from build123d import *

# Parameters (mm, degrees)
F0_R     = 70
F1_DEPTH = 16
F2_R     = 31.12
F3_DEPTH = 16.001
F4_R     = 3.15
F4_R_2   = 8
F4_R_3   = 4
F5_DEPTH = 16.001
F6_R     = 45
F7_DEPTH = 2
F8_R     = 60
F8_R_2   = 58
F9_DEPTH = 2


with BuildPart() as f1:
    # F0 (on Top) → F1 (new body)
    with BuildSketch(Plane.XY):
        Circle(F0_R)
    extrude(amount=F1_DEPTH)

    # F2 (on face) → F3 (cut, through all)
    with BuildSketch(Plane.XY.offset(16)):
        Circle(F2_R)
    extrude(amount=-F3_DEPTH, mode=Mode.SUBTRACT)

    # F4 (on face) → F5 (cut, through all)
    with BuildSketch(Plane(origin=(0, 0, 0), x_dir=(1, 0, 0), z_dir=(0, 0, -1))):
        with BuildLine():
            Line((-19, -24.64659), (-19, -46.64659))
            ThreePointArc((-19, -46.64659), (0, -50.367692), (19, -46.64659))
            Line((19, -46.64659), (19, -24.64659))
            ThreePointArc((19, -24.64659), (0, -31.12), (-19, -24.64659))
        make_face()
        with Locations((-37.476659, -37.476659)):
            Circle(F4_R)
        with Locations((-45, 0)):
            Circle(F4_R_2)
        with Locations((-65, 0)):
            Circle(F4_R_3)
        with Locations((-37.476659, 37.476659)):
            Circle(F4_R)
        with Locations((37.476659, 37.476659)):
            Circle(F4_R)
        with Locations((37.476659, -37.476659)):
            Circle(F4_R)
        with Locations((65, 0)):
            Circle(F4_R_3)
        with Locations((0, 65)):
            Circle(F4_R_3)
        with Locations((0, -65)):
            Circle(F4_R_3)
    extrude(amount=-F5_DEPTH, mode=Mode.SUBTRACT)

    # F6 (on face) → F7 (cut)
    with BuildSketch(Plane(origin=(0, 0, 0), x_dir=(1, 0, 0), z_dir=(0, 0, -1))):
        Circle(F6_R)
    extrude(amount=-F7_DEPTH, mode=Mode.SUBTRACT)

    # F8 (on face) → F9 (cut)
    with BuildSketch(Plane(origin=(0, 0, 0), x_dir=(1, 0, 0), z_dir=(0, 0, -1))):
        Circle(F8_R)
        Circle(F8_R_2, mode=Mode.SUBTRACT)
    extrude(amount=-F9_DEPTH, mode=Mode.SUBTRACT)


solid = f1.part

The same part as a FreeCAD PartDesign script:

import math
import FreeCAD as App
import Part
import Sketcher

V = App.Vector
Q = App.Units.Quantity

doc = App.newDocument("Part")
body = doc.addObject("PartDesign::Body", "Body")

# Sketch on XY plane
sketch1 = doc.addObject("Sketcher::SketchObject", "Sketch")
body.addObject(sketch1)
sketch1.AttachmentSupport = (doc.XY_Plane, [""])
sketch1.MapMode = "FlatFace"
sketch1.addGeometry(Part.Circle(V(0, 0, 0), V(0, 0, 1), 70), False)
sketch1.addConstraint([
    Sketcher.Constraint("Coincident", 0, 3, -1, 1),
    Sketcher.Constraint("Diameter", 0, Q("140 mm")),
])
pad1 = doc.addObject("PartDesign::Pad", "Pad")
body.addObject(pad1)
pad1.Profile = sketch1
pad1.Length = 16

# Sketch on XY plane
sketch2 = doc.addObject("Sketcher::SketchObject", "Sketch001")
body.addObject(sketch2)
sketch2.AttachmentSupport = (doc.XY_Plane, [""])
sketch2.MapMode = "FlatFace"
sketch2.AttachmentOffset = App.Placement(V(0, 0, 16), App.Rotation())
sketch2.addGeometry(Part.Circle(V(0, 0, 0), V(0, 0, 1), 31), False)
sketch2.addConstraint([
    Sketcher.Constraint("Coincident", 0, 3, -1, 1),
    Sketcher.Constraint("Diameter", 0, Q("62.24 mm")),
])
pocket1 = doc.addObject("PartDesign::Pocket", "Pocket")
body.addObject(pocket1)
pocket1.Profile = sketch2
pocket1.Type = "ThroughAll"

# Sketch on XY plane
sketch3 = doc.addObject("Sketcher::SketchObject", "Sketch002")
body.addObject(sketch3)
sketch3.AttachmentSupport = (doc.XY_Plane, [""])
sketch3.MapMode = "FlatFace"
sketch3.addGeometry([
    Part.LineSegment(V(-19, 24.6, 0), V(-19, 46.6, 0)),  # 0
    Part.ArcOfCircle(Part.Circle(V(0, 0, 0), V(0, 0, 1), 50.4), math.radians(68), math.radians(112)),  # 1
    Part.LineSegment(V(19, 46.6, 0), V(19, 24.6, 0)),  # 2
    Part.ArcOfCircle(Part.Circle(V(0, 0, 0), V(0, 0, 1), 31.1), math.radians(52), math.radians(128)),  # 3
    Part.Circle(V(-37.5, 37.5, 0), V(0, 0, 1), 3.1),  # 4
    Part.Circle(V(-45, 0, 0), V(0, 0, 1), 8),  # 5
    Part.Circle(V(-65, 0, 0), V(0, 0, 1), 4),  # 6
    Part.Circle(V(-37.5, -37.5, 0), V(0, 0, 1), 3.1),  # 7
    Part.Circle(V(37.5, -37.5, 0), V(0, 0, 1), 3.1),  # 8
    Part.Circle(V(37.5, 37.5, 0), V(0, 0, 1), 3.1),  # 9
    Part.Circle(V(65, 0, 0), V(0, 0, 1), 4),  # 10
    Part.Circle(V(0, -65, 0), V(0, 0, 1), 4),  # 11
    Part.Circle(V(0, 65, 0), V(0, 0, 1), 4),  # 12
], False)
sketch3.addConstraint([
    Sketcher.Constraint("Coincident", 0, 2, 1, 2),
    Sketcher.Constraint("Coincident", 1, 1, 2, 1),
    Sketcher.Constraint("Coincident", 2, 2, 3, 1),
    Sketcher.Constraint("Coincident", 3, 2, 0, 1),
    Sketcher.Constraint("Vertical", 0),
    Sketcher.Constraint("Vertical", 2),
    Sketcher.Constraint("Coincident", 1, 3, -1, 1),
    Sketcher.Constraint("Coincident", 3, 3, -1, 1),
    Sketcher.Constraint("Equal", 4, 7),
    Sketcher.Constraint("Equal", 7, 8),
    Sketcher.Constraint("Equal", 8, 9),
    Sketcher.Constraint("Equal", 6, 10),
    Sketcher.Constraint("Equal", 10, 11),
    Sketcher.Constraint("Equal", 11, 12),
    Sketcher.Constraint("Symmetric", 4, 3, 8, 3, -1, 1),
    Sketcher.Constraint("Symmetric", 7, 3, 9, 3, -1, 1),
    Sketcher.Constraint("Symmetric", 6, 3, 10, 3, -1, 1),
    Sketcher.Constraint("Symmetric", 11, 3, 12, 3, -1, 1),
    Sketcher.Constraint("Symmetric", 7, 3, 8, 3, -2),
    Sketcher.Constraint("PointOnObject", 5, 3, -1),
    Sketcher.Constraint("PointOnObject", 6, 3, -1),
    Sketcher.Constraint("PointOnObject", 11, 3, -2),
    Sketcher.Constraint("Horizontal", 0, 2, 1, 1),
    Sketcher.Constraint("Diameter", 5, Q("16 mm")),
    Sketcher.Constraint("Diameter", 6, Q("8 mm")),
    Sketcher.Constraint("Diameter", 4, Q("6.3 mm")),
    Sketcher.Constraint("DistanceY", 0, 1, 0, 2, Q("22 mm")),
    Sketcher.Constraint("Radius", 3, Q("31.12 mm")),
    Sketcher.Constraint("DistanceX", 5, 3, -1, 1, Q("45 mm")),
    Sketcher.Constraint("DistanceX", 6, 3, -1, 1, Q("65 mm")),
    Sketcher.Constraint("DistanceY", 11, 3, -1, 1, Q("65 mm")),
    Sketcher.Constraint("DistanceX", 0, 2, -1, 1, Q("19 mm")),
    Sketcher.Constraint("DistanceX", 4, 3, -1, 1, Q("37.476659 mm")),
    Sketcher.Constraint("DistanceY", -1, 1, 4, 3, Q("37.476659 mm")),
])
pocket2 = doc.addObject("PartDesign::Pocket", "Pocket001")
body.addObject(pocket2)
pocket2.Profile = sketch3
pocket2.Type = "ThroughAll"
pocket2.Reversed = True

# Sketch on XY plane
sketch4 = doc.addObject("Sketcher::SketchObject", "Sketch003")
body.addObject(sketch4)
sketch4.AttachmentSupport = (doc.XY_Plane, [""])
sketch4.MapMode = "FlatFace"
sketch4.addGeometry(Part.Circle(V(0, 0, 0), V(0, 0, 1), 45), False)
sketch4.addConstraint([
    Sketcher.Constraint("Coincident", 0, 3, -1, 1),
    Sketcher.Constraint("Diameter", 0, Q("90 mm")),
])
pocket3 = doc.addObject("PartDesign::Pocket", "Pocket002")
body.addObject(pocket3)
pocket3.Profile = sketch4
pocket3.Length = 2
pocket3.Reversed = True

# Sketch on XY plane
sketch5 = doc.addObject("Sketcher::SketchObject", "Sketch004")
body.addObject(sketch5)
sketch5.AttachmentSupport = (doc.XY_Plane, [""])
sketch5.MapMode = "FlatFace"
sketch5.addGeometry([
    Part.Circle(V(0, 0, 0), V(0, 0, 1), 60),
    Part.Circle(V(0, 0, 0), V(0, 0, 1), 58),
], False)
sketch5.addConstraint([
    Sketcher.Constraint("Coincident", 0, 3, -1, 1),
    Sketcher.Constraint("Coincident", 1, 3, -1, 1),
    Sketcher.Constraint("Diameter", 0, Q("120 mm")),
    Sketcher.Constraint("Diameter", 1, Q("116 mm")),
])
pocket4 = doc.addObject("PartDesign::Pocket", "Pocket003")
body.addObject(pocket4)
pocket4.Profile = sketch5
pocket4.Length = 2
pocket4.Reversed = True

doc.recompute()
